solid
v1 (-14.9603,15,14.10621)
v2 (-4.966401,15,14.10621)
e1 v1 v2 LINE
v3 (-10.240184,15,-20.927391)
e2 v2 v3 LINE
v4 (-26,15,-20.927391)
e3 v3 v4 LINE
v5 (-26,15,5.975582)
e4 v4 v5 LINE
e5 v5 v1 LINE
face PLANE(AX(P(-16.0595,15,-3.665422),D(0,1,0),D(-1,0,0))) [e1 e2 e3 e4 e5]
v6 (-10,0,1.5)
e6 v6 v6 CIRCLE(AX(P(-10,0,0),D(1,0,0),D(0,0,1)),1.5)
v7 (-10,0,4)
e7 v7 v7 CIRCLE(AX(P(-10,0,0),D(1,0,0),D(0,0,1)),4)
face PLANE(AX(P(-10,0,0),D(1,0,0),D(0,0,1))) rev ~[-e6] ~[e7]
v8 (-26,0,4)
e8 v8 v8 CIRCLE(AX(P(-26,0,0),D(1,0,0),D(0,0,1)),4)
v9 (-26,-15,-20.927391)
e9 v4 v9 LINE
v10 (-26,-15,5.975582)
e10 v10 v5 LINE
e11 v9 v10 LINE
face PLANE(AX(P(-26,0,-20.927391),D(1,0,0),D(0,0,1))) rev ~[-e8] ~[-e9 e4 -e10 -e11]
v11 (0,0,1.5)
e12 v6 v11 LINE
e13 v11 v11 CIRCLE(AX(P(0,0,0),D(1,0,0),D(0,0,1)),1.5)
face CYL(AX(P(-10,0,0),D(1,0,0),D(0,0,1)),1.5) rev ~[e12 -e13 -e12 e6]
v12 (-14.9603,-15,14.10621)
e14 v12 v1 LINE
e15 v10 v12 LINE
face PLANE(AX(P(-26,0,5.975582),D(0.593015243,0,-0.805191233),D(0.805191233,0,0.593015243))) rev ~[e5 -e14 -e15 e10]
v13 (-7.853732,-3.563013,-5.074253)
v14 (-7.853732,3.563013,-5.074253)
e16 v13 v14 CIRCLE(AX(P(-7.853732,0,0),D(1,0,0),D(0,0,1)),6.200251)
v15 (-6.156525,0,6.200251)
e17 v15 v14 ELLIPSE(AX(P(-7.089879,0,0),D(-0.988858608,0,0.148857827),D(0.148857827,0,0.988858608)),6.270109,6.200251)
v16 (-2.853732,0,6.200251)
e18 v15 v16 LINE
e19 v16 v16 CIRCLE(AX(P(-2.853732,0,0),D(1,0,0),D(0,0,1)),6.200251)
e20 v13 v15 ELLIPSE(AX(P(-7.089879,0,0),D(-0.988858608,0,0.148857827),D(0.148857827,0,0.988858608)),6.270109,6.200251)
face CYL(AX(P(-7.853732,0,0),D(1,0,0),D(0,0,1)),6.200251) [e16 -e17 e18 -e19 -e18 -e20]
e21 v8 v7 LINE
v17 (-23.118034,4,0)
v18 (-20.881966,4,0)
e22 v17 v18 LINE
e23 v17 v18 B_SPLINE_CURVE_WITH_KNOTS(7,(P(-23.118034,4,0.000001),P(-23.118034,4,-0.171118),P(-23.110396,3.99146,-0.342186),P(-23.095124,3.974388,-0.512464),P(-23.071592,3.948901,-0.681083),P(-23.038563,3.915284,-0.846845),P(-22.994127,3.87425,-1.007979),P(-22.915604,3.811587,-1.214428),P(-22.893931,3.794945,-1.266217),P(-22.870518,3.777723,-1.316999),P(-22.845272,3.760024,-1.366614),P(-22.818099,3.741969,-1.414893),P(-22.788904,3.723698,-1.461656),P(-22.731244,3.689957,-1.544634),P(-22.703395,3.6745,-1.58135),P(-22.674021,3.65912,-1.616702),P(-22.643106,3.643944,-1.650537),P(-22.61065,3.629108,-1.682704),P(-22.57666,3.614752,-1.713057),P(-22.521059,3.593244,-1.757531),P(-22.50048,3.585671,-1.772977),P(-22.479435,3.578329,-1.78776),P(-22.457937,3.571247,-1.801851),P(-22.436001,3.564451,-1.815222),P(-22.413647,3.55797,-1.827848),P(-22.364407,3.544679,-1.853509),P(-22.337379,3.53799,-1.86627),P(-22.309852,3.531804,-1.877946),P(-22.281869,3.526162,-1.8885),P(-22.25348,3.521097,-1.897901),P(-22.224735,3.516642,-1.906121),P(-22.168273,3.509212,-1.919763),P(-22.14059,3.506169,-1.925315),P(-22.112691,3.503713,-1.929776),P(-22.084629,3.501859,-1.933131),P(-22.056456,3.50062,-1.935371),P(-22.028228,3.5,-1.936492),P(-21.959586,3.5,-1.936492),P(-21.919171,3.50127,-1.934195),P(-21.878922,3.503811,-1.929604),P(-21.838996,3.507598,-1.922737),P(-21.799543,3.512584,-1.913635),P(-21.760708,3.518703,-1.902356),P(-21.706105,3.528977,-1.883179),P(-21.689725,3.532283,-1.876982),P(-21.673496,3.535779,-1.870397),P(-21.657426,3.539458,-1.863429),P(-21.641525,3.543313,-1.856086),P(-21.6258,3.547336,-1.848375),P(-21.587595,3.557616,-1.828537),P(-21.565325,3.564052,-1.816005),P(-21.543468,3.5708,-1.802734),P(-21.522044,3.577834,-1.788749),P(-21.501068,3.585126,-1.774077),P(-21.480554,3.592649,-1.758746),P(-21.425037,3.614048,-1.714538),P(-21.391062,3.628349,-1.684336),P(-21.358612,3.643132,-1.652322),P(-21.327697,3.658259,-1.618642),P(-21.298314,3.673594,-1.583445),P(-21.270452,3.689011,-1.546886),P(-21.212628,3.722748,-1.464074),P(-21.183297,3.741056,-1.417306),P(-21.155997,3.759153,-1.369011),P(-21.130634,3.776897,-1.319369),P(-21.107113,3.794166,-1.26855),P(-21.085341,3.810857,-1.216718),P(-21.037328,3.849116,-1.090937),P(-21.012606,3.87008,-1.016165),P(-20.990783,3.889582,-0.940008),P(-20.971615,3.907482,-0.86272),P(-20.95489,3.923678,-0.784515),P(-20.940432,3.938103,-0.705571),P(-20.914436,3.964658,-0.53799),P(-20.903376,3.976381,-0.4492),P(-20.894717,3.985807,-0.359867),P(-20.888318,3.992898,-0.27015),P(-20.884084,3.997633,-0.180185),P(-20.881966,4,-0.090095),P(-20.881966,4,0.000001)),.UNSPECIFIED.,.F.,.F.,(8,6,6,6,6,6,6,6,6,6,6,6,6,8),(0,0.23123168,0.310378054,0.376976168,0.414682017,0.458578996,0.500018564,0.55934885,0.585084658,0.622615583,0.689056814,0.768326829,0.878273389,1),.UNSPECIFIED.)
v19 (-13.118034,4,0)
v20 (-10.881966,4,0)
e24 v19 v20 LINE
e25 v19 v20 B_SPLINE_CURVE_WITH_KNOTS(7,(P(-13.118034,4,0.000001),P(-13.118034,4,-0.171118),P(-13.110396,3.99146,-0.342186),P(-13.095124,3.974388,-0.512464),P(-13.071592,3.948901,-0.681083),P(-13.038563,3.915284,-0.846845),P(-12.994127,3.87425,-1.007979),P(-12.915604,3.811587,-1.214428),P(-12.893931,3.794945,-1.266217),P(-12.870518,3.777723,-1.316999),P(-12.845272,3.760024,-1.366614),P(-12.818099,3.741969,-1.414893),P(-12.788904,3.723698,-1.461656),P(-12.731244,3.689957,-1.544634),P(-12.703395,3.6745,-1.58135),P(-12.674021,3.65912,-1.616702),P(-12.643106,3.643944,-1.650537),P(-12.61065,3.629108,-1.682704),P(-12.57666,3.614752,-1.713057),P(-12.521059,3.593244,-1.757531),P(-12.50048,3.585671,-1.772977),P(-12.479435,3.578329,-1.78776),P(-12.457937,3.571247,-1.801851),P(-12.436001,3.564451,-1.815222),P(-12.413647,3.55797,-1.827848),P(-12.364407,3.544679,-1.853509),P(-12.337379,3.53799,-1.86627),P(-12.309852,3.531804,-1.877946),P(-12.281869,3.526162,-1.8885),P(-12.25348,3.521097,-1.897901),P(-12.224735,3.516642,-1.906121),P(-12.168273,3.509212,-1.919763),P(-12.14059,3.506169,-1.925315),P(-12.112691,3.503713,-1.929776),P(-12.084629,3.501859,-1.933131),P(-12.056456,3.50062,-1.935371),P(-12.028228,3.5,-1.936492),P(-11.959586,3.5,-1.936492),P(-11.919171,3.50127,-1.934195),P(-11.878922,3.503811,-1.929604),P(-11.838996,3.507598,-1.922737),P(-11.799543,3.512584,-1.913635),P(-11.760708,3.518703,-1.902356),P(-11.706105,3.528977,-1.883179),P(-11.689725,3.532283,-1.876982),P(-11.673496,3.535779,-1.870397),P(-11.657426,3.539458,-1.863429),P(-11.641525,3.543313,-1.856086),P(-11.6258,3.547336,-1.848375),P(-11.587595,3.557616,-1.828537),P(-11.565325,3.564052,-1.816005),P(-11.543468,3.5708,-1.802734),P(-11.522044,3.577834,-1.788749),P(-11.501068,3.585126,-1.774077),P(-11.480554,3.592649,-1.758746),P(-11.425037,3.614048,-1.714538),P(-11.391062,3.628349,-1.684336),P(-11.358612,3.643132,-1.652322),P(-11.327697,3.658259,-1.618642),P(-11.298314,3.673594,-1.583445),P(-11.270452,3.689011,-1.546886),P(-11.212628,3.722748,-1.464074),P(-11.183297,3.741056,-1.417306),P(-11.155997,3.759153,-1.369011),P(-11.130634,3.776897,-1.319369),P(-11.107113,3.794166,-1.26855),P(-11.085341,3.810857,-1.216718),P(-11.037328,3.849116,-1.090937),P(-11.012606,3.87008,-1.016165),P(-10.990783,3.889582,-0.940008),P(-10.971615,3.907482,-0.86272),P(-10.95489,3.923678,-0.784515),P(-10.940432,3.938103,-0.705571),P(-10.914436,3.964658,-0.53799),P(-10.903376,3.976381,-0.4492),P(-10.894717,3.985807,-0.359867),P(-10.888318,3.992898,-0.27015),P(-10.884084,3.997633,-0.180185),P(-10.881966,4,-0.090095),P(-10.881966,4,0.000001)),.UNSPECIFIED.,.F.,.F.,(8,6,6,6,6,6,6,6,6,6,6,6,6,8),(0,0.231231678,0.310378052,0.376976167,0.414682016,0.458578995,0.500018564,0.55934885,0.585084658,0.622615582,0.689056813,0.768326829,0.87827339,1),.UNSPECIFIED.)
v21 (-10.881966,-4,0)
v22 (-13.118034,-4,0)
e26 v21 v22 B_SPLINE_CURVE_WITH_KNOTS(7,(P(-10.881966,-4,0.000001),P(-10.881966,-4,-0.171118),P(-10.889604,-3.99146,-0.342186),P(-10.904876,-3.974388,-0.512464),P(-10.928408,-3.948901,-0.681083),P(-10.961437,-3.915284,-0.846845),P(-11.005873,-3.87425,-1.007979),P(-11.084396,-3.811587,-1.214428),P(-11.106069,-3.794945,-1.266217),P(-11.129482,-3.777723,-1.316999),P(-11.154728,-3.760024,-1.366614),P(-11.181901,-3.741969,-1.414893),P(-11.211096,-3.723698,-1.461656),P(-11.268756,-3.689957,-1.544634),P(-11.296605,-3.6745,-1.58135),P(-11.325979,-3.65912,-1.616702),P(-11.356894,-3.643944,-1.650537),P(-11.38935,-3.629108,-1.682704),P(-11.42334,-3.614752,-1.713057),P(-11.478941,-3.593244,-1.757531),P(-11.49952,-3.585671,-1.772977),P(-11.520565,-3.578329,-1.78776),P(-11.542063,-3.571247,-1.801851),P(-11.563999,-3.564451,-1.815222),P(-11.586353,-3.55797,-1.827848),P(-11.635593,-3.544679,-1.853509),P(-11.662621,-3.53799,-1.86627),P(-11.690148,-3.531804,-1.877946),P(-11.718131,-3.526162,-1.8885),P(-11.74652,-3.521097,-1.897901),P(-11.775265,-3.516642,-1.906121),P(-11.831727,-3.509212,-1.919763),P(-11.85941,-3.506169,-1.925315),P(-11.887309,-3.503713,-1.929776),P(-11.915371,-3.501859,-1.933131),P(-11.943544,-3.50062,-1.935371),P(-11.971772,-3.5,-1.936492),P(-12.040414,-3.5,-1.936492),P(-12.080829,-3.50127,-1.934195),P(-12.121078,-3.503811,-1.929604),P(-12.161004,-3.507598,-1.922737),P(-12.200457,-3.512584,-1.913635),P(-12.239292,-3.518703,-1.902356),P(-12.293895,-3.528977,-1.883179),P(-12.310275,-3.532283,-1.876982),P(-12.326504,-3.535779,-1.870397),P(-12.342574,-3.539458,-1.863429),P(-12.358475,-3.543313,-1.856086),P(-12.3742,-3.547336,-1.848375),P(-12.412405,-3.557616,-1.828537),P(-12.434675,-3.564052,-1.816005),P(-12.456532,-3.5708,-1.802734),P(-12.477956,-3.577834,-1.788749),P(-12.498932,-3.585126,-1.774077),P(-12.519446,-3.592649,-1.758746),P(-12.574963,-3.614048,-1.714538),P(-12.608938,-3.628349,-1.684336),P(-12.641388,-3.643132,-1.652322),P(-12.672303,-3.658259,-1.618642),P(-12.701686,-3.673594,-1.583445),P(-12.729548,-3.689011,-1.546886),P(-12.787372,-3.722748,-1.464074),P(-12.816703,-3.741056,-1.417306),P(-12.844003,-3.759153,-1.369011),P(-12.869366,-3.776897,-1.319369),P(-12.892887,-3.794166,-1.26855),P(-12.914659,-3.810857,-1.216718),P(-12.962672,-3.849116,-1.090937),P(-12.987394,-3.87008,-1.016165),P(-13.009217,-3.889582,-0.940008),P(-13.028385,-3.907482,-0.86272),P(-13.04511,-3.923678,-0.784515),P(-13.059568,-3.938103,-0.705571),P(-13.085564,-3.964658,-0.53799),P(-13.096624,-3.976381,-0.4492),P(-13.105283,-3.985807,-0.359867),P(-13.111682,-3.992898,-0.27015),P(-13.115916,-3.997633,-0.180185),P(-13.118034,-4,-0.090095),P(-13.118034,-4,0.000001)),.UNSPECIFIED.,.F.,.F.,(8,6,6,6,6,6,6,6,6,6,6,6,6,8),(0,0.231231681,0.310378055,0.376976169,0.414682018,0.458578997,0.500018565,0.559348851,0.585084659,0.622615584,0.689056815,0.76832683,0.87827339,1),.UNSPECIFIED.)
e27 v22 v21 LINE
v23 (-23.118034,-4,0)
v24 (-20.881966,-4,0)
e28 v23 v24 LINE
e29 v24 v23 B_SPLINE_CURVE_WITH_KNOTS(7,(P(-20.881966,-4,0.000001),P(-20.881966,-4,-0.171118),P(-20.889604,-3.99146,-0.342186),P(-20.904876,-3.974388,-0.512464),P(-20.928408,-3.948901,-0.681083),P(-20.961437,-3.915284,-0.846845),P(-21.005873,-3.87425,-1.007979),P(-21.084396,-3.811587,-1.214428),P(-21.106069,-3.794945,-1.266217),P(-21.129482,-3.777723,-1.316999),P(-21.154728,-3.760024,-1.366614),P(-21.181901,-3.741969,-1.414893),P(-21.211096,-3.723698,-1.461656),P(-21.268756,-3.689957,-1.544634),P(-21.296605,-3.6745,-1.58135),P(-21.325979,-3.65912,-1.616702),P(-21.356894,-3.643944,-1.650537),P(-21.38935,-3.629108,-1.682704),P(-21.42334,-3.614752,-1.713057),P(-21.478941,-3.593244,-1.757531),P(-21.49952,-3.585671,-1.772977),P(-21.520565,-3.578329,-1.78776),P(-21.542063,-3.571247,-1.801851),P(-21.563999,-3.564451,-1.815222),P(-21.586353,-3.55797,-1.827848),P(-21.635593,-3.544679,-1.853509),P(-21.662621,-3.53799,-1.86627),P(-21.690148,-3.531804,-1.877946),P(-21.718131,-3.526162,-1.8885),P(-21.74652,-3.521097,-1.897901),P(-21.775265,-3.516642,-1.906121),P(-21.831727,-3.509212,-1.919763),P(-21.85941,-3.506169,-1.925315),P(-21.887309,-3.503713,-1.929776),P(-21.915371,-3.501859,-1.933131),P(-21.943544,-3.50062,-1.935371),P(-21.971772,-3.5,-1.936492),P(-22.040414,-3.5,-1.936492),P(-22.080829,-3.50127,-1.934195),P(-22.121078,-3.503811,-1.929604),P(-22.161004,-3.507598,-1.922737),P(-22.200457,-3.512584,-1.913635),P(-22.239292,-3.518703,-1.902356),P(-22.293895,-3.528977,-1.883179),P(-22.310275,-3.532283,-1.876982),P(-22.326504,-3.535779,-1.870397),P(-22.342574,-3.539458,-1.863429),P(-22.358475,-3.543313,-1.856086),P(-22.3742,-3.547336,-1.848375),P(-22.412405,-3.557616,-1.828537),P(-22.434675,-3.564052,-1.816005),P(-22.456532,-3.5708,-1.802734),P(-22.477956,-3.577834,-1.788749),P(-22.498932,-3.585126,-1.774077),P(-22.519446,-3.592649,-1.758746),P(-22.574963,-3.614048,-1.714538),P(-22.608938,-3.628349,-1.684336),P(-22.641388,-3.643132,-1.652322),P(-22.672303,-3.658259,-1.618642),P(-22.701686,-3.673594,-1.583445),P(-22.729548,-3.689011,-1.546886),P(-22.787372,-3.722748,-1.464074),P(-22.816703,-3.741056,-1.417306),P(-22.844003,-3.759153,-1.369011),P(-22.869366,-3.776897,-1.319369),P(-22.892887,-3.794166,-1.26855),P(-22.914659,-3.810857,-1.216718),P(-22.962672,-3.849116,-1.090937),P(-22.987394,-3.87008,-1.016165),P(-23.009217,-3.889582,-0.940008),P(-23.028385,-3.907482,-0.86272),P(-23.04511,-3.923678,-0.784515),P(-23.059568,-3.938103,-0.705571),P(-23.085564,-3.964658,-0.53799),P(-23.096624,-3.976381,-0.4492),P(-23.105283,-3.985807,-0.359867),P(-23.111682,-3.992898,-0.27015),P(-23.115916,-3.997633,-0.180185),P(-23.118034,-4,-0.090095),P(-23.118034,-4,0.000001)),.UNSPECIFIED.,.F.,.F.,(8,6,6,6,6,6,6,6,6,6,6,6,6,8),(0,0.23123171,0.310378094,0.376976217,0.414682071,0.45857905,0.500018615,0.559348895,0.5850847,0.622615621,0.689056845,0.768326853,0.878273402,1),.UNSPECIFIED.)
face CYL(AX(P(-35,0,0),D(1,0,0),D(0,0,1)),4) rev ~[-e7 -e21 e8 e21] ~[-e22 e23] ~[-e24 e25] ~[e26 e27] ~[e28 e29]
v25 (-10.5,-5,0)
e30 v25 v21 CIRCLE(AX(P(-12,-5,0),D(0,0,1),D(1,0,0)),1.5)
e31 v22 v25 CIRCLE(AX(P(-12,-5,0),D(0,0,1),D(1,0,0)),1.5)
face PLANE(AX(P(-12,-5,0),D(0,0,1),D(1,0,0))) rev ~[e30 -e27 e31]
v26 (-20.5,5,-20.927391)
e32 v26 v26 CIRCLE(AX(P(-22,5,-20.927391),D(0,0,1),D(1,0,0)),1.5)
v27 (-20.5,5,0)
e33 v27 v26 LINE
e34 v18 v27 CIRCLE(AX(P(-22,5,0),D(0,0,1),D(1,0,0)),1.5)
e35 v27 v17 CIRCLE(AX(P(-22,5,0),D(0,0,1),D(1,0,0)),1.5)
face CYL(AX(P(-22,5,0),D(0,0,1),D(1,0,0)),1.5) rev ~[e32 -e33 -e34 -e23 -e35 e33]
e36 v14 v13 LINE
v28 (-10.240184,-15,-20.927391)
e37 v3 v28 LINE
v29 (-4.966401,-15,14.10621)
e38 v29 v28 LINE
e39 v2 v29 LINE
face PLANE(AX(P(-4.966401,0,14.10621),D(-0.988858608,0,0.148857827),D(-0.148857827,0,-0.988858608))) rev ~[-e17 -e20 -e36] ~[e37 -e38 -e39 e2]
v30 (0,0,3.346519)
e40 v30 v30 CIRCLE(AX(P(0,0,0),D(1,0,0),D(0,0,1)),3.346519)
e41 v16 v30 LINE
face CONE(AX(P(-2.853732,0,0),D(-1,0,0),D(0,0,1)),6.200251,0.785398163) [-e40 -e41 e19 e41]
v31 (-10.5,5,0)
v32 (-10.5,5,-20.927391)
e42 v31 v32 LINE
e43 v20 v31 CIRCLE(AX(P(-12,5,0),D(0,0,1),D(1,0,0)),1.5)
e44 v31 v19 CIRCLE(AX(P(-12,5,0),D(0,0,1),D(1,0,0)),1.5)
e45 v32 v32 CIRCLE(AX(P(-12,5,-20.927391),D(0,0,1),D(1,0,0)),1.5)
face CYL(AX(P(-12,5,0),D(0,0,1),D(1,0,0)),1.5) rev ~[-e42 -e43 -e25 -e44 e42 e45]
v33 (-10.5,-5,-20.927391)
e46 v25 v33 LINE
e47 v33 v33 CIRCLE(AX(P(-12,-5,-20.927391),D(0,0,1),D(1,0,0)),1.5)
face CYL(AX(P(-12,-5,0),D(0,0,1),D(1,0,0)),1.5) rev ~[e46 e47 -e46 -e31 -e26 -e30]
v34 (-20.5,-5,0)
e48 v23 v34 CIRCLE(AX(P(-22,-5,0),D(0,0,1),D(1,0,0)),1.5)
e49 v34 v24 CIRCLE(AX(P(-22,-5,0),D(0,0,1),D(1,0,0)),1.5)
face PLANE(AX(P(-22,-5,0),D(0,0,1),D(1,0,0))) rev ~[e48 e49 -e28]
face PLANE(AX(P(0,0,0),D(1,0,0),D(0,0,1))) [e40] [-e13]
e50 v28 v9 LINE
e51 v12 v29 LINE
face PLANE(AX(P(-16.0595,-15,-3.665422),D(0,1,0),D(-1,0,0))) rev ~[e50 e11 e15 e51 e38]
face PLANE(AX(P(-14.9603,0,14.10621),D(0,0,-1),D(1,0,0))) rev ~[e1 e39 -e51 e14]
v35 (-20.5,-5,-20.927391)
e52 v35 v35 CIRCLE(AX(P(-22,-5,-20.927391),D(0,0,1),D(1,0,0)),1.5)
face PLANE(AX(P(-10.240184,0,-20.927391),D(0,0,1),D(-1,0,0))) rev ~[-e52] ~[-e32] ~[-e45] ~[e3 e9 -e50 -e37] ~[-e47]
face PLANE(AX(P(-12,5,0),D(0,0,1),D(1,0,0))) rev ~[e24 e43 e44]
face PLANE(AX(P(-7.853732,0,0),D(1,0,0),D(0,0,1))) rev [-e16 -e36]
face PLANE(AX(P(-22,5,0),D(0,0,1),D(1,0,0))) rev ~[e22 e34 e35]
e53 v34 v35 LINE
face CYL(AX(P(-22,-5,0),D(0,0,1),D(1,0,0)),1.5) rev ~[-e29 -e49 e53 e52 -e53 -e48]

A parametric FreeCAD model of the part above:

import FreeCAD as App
import Part
import Sketcher
from FreeCAD import Vector
Q = App.Units.Quantity


def add_polygon(sketch, points):
    """Adds a closed chain of lines whose ends are joined by coincident constraints."""
    first, n = sketch.GeometryCount, len(points)
    for a, b in zip(points, points[1:] + points[:1]):
        sketch.addGeometry(Part.LineSegment(App.Vector(*a, 0), App.Vector(*b, 0)), False)
    for i in range(n):
        sketch.addConstraint(Sketcher.Constraint("Coincident", first + i, 2, first + (i + 1) % n, 1))

doc = App.newDocument("Part")
body = doc.addObject("PartDesign::Body", "Body")

sketch1 = doc.addObject("Sketcher::SketchObject", "Sketch")
body.addObject(sketch1)
sketch1.AttachmentSupport = (doc.XZ_Plane, [""])
sketch1.MapMode = "FlatFace"
add_polygon(sketch1, [(-35, 4), (-35, 0), (0, 0), (0, 1.5), (-10, 1.5), (-10, 4)])
sketch1.addConstraint(Sketcher.Constraint("Vertical", 0))
sketch1.addConstraint(Sketcher.Constraint("Horizontal", 1))
sketch1.addConstraint(Sketcher.Constraint("Vertical", 2))
sketch1.addConstraint(Sketcher.Constraint("Horizontal", 3))
sketch1.addConstraint(Sketcher.Constraint("Vertical", 4))
sketch1.addConstraint(Sketcher.Constraint("Horizontal", 5))
sketch1.addConstraint(Sketcher.Constraint("Coincident", 1, 2, -1, 1))
sketch1.addConstraint(Sketcher.Constraint("DistanceX", 1, 1, 1, 2, 35.0))
sketch1.addConstraint(Sketcher.Constraint("DistanceX", 3, 2, 3, 1, 10.0))
sketch1.addConstraint(Sketcher.Constraint("DistanceY", 0, 2, 0, 1, 4.0))
sketch1.addConstraint(Sketcher.Constraint("DistanceY", 2, 1, 2, 2, 1.5))
revolution = doc.addObject("PartDesign::Revolution", "Revolution")
body.addObject(revolution)
revolution.Profile = sketch1
revolution.ReferenceAxis = (sketch1, ["H_Axis"])
revolution.Angle = 360
body2 = doc.addObject("PartDesign::Body", "Body001")
body2.AllowCompound = True

sketch2 = doc.addObject("Sketcher::SketchObject", "Sketch001")
body2.addObject(sketch2)
sketch2.AttachmentSupport = (doc.getObject("XY_Plane001"), [""])
sketch2.MapMode = "FlatFace"
sketch2.addGeometry(Part.Circle(Vector(-22, 5, 0), Vector(0, 0, 1), 1.5), False)
sketch2.addGeometry(Part.Circle(Vector(-12, 5, 0), Vector(0, 0, 1), 1.5), False)
sketch2.addGeometry(Part.Circle(Vector(-22, -5, 0), Vector(0, 0, 1), 1.5), False)
sketch2.addGeometry(Part.Circle(Vector(-12, -5, 0), Vector(0, 0, 1), 1.5), False)
sketch2.addConstraint(Sketcher.Constraint("Equal", 0, 1))
sketch2.addConstraint(Sketcher.Constraint("Equal", 1, 2))
sketch2.addConstraint(Sketcher.Constraint("Equal", 2, 3))
sketch2.addConstraint(Sketcher.Constraint("Symmetric", 0, 3, 2, 3, -1))
sketch2.addConstraint(Sketcher.Constraint("Symmetric", 1, 3, 3, 3, -1))
sketch2.addConstraint(Sketcher.Constraint("Horizontal", 0, 3, 1, 3))
sketch2.addConstraint(Sketcher.Constraint("Diameter", 0, 3.0))
sketch2.addConstraint(Sketcher.Constraint("DistanceX", 0, 3, -1, 1, 22.0))
sketch2.addConstraint(Sketcher.Constraint("DistanceY", -1, 1, 0, 3, 5.0))
sketch2.addConstraint(Sketcher.Constraint("DistanceX", 1, 3, -1, 1, 12.0))
pad1 = doc.addObject("PartDesign::Pad", "Pad")
body2.addObject(pad1)
pad1.Profile = sketch2
pad1.Length = 50
pad1.Reversed = True
doc.recompute()

boolean = doc.addObject("PartDesign::Boolean", "Boolean")
body2.addObject(boolean)
boolean.Type = "Fuse"
boolean.addObjects([body])
body3 = doc.addObject("PartDesign::Body", "Body002")

sketch3 = doc.addObject("Sketcher::SketchObject", "Sketch002")
body3.addObject(sketch3)
sketch3.AttachmentSupport = (doc.getObject("XZ_Plane002"), [""])
sketch3.MapMode = "FlatFace"
add_polygon(sketch3, [(-2.853732, 6.200251), (-7.853732, 6.200251), (-7.853732, 0), (0, 0), (0, 3.346519)])
sketch3.addConstraint(Sketcher.Constraint("Horizontal", 0))
sketch3.addConstraint(Sketcher.Constraint("Vertical", 1))
sketch3.addConstraint(Sketcher.Constraint("Horizontal", 2))
sketch3.addConstraint(Sketcher.Constraint("Vertical", 3))
sketch3.addConstraint(Sketcher.Constraint("Coincident", 2, 2, -1, 1))
sketch3.addConstraint(Sketcher.Constraint("DistanceX", 0, 2, 0, 1, 5.0))
sketch3.addConstraint(Sketcher.Constraint("Angle", 4, Q("135 deg")))
sketch3.addConstraint(Sketcher.Constraint("DistanceY", 1, 2, 1, 1, 6.200251))
sketch3.addConstraint(Sketcher.Constraint("DistanceY", 3, 1, 3, 2, 3.346519))
revolution2 = doc.addObject("PartDesign::Revolution", "Revolution001")
body3.addObject(revolution2)
revolution2.Profile = sketch3
revolution2.ReferenceAxis = (sketch3, ["H_Axis"])
revolution2.Angle = 360
body4 = doc.addObject("PartDesign::Body", "Body003")

sketch4 = doc.addObject("Sketcher::SketchObject", "Sketch003")
body4.addObject(sketch4)
sketch4.AttachmentSupport = (doc.getObject("XZ_Plane003"), [""])
sketch4.MapMode = "FlatFace"
add_polygon(sketch4, [(-26, 5.975582), (-26, -20.927391), (-10.240184, -20.927391), (-4.966401, 14.10621), (-14.9603, 14.10621)])
sketch4.addConstraint(Sketcher.Constraint("Vertical", 0))
sketch4.addConstraint(Sketcher.Constraint("Horizontal", 1))
sketch4.addConstraint(Sketcher.Constraint("Horizontal", 3))
sketch4.addConstraint(Sketcher.Constraint("DistanceX", 0, 2, -1, 1, 26.0))
sketch4.addConstraint(Sketcher.Constraint("DistanceX", 3, 2, 3, 1, 9.993899))
sketch4.addConstraint(Sketcher.Constraint("DistanceX", 2, 2, -1, 1, 4.966401))
sketch4.addConstraint(Sketcher.Constraint("DistanceY", 1, 2, 2, 2, 35.033601))
sketch4.addConstraint(Sketcher.Constraint("Distance", 2, 35.428322))
sketch4.addConstraint(Sketcher.Constraint("DistanceY", 0, 2, 0, 1, 26.902973))
sketch4.addConstraint(Sketcher.Constraint("DistanceY", 0, 2, -1, 1, 20.927391))
pad2 = doc.addObject("PartDesign::Pad", "Pad001")
body4.addObject(pad2)
pad2.Profile = sketch4
pad2.Length = 30
pad2.Midplane = True
doc.recompute()

boolean2 = doc.addObject("PartDesign::Boolean", "Boolean001")
body4.addObject(boolean2)
boolean2.Type = "Fuse"
boolean2.addObjects([body3])
doc.recompute()

boolean3 = doc.addObject("PartDesign::Boolean", "Boolean002")
body4.addObject(boolean3)
boolean3.Type = "Cut"
boolean3.addObjects([body2])

doc.recompute()
